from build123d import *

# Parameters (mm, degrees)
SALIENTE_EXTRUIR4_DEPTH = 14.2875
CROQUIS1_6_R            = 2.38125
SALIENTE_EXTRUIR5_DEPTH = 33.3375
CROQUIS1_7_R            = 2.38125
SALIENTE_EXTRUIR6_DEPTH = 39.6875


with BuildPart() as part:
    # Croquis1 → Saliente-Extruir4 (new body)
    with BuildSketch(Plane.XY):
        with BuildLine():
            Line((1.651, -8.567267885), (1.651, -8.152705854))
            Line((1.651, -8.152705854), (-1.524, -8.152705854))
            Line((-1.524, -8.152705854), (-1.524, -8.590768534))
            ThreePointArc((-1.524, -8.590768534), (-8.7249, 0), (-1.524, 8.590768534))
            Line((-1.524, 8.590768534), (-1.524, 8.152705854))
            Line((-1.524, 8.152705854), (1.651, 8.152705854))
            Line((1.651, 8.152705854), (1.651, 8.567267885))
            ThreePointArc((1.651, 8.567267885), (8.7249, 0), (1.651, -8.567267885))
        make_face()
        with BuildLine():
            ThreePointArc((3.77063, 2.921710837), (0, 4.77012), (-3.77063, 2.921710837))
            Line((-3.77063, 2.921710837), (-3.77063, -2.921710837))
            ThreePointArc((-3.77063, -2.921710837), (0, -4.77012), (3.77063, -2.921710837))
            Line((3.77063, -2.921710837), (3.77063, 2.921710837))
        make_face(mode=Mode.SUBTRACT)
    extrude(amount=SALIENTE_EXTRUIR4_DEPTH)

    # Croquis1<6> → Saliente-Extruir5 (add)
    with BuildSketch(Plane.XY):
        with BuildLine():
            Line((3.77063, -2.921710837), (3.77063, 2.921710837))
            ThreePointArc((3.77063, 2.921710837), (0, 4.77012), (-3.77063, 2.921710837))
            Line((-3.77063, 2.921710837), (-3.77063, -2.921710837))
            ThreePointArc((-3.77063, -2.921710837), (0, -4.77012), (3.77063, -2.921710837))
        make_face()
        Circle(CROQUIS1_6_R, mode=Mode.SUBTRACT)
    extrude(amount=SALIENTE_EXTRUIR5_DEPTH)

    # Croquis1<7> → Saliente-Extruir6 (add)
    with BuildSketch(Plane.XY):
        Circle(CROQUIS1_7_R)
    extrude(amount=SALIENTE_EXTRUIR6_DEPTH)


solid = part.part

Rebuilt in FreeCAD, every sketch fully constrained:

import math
import FreeCAD as App
import Part
import Sketcher
from FreeCAD import Vector
Q = App.Units.Quantity

doc = App.newDocument("Part")
body = doc.addObject("PartDesign::Body", "Body")

sketch1 = doc.addObject("Sketcher::SketchObject", "Sketch")
body.addObject(sketch1)
sketch1.AttachmentSupport = (doc.XY_Plane, [""])
sketch1.MapMode = "FlatFace"
sketch1.addGeometry([
    Part.LineSegment(Vector(1.65, -8.15, 0), Vector(1.65, -8.57, 0)),
    Part.ArcOfCircle(Part.Circle(Vector(0, 0, 0), Vector(0, 0, 1), 8.72), math.radians(-79), math.radians(79)),
    Part.LineSegment(Vector(1.65, 8.57, 0), Vector(1.65, 8.15, 0)),
    Part.LineSegment(Vector(1.65, 8.15, 0), Vector(-1.52, 8.15, 0)),
    Part.LineSegment(Vector(-1.52, 8.15, 0), Vector(-1.52, 8.59, 0)),
    Part.ArcOfCircle(Part.Circle(Vector(0, 0, 0), Vector(0, 0, 1), 8.72), math.radians(100), math.radians(260)),
    Part.LineSegment(Vector(-1.52, -8.59, 0), Vector(-1.52, -8.15, 0)),
    Part.LineSegment(Vector(-1.52, -8.15, 0), Vector(1.65, -8.15, 0)),
    Part.LineSegment(Vector(3.77, 2.92, 0), Vector(3.77, -2.92, 0)),
    Part.ArcOfCircle(Part.Circle(Vector(0, 0, 0), Vector(0, 0, 1), 4.77), math.radians(-142), math.radians(-38)),
    Part.LineSegment(Vector(-3.77, -2.92, 0), Vector(-3.77, 2.92, 0)),
    Part.ArcOfCircle(Part.Circle(Vector(0, 0, 0), Vector(0, 0, 1), 4.77), math.radians(38), math.radians(142)),
], False)
sketch1.addConstraint([
    Sketcher.Constraint("Coincident", 0, 2, 1, 1),
    Sketcher.Constraint("Coincident", 1, 2, 2, 1),
    Sketcher.Constraint("Coincident", 2, 2, 3, 1),
    Sketcher.Constraint("Coincident", 3, 2, 4, 1),
    Sketcher.Constraint("Coincident", 4, 2, 5, 1),
    Sketcher.Constraint("Coincident", 5, 2, 6, 1),
    Sketcher.Constraint("Coincident", 6, 2, 7, 1),
    Sketcher.Constraint("Coincident", 7, 2, 0, 1),
    Sketcher.Constraint("Coincident", 8, 2, 9, 2),
    Sketcher.Constraint("Coincident", 9, 1, 10, 1),
    Sketcher.Constraint("Coincident", 10, 2, 11, 2),
    Sketcher.Constraint("Coincident", 11, 1, 8, 1),
    Sketcher.Constraint("Vertical", 0),
    Sketcher.Constraint("Vertical", 2),
    Sketcher.Constraint("Horizontal", 3),
    Sketcher.Constraint("Vertical", 4),
    Sketcher.Constraint("Vertical", 6),
    Sketcher.Constraint("Horizontal", 7),
    Sketcher.Constraint("Vertical", 8),
    Sketcher.Constraint("Vertical", 10),
    Sketcher.Constraint("Coincident", 1, 3, -1, 1),
    Sketcher.Constraint("Coincident", 5, 3, -1, 1),
    Sketcher.Constraint("Coincident", 9, 3, -1, 1),
    Sketcher.Constraint("Coincident", 11, 3, -1, 1),
    Sketcher.Constraint("Equal", 1, 5),
    Sketcher.Constraint("Equal", 9, 11),
    Sketcher.Constraint("Symmetric", 3, 2, 6, 2, -1),
    Sketcher.Constraint("Horizontal", 8, 2, 9, 1),
    Sketcher.Constraint("Vertical", 0, 2, 1, 2),
    Sketcher.Constraint("Radius", 1, Q("0.3435 in")),
    Sketcher.Constraint("Radius", 9, Q("0.1878 in")),
    Sketcher.Constraint("DistanceX", 3, 2, 3, 1, Q("0.125 in")),
    Sketcher.Constraint("DistanceX", 3, 2, -1, 1, Q("0.06 in")),
    Sketcher.Constraint("DistanceY", 8, 2, 8, 1, 5.843422),
    Sketcher.Constraint("DistanceY", 0, 2, 0, 1, 0.414562),
])
pad1 = doc.addObject("PartDesign::Pad", "Pad")
body.addObject(pad1)
pad1.Profile = sketch1
pad1.Length = Q("0.5625 in")

sketch2 = doc.addObject("Sketcher::SketchObject", "Sketch001")
body.addObject(sketch2)
sketch2.AttachmentSupport = (doc.XY_Plane, [""])
sketch2.MapMode = "FlatFace"
sketch2.addGeometry([
    Part.LineSegment(Vector(3.8, -2.9, 0), Vector(3.8, 2.9, 0)),
    Part.ArcOfCircle(Part.Circle(Vector(0, 0, 0), Vector(0, 0, 1), 4.8), math.radians(38), math.radians(142)),
    Part.LineSegment(Vector(-3.8, 2.9, 0), Vector(-3.8, -2.9, 0)),
    Part.ArcOfCircle(Part.Circle(Vector(0, 0, 0), Vector(0, 0, 1), 4.8), math.radians(-142), math.radians(-38)),
    Part.Circle(Vector(0, 0, 0), Vector(0, 0, 1), 2.4),
], False)
sketch2.addConstraint([
    Sketcher.Constraint("Coincident", 0, 2, 1, 1),
    Sketcher.Constraint("Coincident", 1, 2, 2, 1),
    Sketcher.Constraint("Coincident", 2, 2, 3, 1),
    Sketcher.Constraint("Coincident", 3, 2, 0, 1),
    Sketcher.Constraint("Vertical", 0),
    Sketcher.Constraint("Vertical", 2),
    Sketcher.Constraint("Coincident", 1, 3, -1, 1),
    Sketcher.Constraint("Coincident", 3, 3, -1, 1),
    Sketcher.Constraint("Coincident", 4, 3, -1, 1),
    Sketcher.Constraint("Equal", 1, 3),
    Sketcher.Constraint("Horizontal", 0, 2, 1, 2),
    Sketcher.Constraint("Diameter", 4, Q("0.1875 in")),
    Sketcher.Constraint("Radius", 1, Q("0.1878 in")),
    Sketcher.Constraint("DistanceX", 1, 2, 0, 2, Q("0.2969 in")),
])
pad2 = doc.addObject("PartDesign::Pad", "Pad001")
body.addObject(pad2)
pad2.Profile = sketch2
pad2.Length = Q("1.3125 in")

sketch3 = doc.addObject("Sketcher::SketchObject", "Sketch002")
body.addObject(sketch3)
sketch3.AttachmentSupport = (doc.XY_Plane, [""])
sketch3.MapMode = "FlatFace"
sketch3.addGeometry(Part.Circle(Vector(0, 0, 0), Vector(0, 0, 1), 2.4), False)
sketch3.addConstraint([
    Sketcher.Constraint("Coincident", 0, 3, -1, 1),
    Sketcher.Constraint("Diameter", 0, Q("0.1875 in")),
])
pad3 = doc.addObject("PartDesign::Pad", "Pad002")
body.addObject(pad3)
pad3.Profile = sketch3
pad3.Length = Q("1.5625 in")

doc.recompute()
